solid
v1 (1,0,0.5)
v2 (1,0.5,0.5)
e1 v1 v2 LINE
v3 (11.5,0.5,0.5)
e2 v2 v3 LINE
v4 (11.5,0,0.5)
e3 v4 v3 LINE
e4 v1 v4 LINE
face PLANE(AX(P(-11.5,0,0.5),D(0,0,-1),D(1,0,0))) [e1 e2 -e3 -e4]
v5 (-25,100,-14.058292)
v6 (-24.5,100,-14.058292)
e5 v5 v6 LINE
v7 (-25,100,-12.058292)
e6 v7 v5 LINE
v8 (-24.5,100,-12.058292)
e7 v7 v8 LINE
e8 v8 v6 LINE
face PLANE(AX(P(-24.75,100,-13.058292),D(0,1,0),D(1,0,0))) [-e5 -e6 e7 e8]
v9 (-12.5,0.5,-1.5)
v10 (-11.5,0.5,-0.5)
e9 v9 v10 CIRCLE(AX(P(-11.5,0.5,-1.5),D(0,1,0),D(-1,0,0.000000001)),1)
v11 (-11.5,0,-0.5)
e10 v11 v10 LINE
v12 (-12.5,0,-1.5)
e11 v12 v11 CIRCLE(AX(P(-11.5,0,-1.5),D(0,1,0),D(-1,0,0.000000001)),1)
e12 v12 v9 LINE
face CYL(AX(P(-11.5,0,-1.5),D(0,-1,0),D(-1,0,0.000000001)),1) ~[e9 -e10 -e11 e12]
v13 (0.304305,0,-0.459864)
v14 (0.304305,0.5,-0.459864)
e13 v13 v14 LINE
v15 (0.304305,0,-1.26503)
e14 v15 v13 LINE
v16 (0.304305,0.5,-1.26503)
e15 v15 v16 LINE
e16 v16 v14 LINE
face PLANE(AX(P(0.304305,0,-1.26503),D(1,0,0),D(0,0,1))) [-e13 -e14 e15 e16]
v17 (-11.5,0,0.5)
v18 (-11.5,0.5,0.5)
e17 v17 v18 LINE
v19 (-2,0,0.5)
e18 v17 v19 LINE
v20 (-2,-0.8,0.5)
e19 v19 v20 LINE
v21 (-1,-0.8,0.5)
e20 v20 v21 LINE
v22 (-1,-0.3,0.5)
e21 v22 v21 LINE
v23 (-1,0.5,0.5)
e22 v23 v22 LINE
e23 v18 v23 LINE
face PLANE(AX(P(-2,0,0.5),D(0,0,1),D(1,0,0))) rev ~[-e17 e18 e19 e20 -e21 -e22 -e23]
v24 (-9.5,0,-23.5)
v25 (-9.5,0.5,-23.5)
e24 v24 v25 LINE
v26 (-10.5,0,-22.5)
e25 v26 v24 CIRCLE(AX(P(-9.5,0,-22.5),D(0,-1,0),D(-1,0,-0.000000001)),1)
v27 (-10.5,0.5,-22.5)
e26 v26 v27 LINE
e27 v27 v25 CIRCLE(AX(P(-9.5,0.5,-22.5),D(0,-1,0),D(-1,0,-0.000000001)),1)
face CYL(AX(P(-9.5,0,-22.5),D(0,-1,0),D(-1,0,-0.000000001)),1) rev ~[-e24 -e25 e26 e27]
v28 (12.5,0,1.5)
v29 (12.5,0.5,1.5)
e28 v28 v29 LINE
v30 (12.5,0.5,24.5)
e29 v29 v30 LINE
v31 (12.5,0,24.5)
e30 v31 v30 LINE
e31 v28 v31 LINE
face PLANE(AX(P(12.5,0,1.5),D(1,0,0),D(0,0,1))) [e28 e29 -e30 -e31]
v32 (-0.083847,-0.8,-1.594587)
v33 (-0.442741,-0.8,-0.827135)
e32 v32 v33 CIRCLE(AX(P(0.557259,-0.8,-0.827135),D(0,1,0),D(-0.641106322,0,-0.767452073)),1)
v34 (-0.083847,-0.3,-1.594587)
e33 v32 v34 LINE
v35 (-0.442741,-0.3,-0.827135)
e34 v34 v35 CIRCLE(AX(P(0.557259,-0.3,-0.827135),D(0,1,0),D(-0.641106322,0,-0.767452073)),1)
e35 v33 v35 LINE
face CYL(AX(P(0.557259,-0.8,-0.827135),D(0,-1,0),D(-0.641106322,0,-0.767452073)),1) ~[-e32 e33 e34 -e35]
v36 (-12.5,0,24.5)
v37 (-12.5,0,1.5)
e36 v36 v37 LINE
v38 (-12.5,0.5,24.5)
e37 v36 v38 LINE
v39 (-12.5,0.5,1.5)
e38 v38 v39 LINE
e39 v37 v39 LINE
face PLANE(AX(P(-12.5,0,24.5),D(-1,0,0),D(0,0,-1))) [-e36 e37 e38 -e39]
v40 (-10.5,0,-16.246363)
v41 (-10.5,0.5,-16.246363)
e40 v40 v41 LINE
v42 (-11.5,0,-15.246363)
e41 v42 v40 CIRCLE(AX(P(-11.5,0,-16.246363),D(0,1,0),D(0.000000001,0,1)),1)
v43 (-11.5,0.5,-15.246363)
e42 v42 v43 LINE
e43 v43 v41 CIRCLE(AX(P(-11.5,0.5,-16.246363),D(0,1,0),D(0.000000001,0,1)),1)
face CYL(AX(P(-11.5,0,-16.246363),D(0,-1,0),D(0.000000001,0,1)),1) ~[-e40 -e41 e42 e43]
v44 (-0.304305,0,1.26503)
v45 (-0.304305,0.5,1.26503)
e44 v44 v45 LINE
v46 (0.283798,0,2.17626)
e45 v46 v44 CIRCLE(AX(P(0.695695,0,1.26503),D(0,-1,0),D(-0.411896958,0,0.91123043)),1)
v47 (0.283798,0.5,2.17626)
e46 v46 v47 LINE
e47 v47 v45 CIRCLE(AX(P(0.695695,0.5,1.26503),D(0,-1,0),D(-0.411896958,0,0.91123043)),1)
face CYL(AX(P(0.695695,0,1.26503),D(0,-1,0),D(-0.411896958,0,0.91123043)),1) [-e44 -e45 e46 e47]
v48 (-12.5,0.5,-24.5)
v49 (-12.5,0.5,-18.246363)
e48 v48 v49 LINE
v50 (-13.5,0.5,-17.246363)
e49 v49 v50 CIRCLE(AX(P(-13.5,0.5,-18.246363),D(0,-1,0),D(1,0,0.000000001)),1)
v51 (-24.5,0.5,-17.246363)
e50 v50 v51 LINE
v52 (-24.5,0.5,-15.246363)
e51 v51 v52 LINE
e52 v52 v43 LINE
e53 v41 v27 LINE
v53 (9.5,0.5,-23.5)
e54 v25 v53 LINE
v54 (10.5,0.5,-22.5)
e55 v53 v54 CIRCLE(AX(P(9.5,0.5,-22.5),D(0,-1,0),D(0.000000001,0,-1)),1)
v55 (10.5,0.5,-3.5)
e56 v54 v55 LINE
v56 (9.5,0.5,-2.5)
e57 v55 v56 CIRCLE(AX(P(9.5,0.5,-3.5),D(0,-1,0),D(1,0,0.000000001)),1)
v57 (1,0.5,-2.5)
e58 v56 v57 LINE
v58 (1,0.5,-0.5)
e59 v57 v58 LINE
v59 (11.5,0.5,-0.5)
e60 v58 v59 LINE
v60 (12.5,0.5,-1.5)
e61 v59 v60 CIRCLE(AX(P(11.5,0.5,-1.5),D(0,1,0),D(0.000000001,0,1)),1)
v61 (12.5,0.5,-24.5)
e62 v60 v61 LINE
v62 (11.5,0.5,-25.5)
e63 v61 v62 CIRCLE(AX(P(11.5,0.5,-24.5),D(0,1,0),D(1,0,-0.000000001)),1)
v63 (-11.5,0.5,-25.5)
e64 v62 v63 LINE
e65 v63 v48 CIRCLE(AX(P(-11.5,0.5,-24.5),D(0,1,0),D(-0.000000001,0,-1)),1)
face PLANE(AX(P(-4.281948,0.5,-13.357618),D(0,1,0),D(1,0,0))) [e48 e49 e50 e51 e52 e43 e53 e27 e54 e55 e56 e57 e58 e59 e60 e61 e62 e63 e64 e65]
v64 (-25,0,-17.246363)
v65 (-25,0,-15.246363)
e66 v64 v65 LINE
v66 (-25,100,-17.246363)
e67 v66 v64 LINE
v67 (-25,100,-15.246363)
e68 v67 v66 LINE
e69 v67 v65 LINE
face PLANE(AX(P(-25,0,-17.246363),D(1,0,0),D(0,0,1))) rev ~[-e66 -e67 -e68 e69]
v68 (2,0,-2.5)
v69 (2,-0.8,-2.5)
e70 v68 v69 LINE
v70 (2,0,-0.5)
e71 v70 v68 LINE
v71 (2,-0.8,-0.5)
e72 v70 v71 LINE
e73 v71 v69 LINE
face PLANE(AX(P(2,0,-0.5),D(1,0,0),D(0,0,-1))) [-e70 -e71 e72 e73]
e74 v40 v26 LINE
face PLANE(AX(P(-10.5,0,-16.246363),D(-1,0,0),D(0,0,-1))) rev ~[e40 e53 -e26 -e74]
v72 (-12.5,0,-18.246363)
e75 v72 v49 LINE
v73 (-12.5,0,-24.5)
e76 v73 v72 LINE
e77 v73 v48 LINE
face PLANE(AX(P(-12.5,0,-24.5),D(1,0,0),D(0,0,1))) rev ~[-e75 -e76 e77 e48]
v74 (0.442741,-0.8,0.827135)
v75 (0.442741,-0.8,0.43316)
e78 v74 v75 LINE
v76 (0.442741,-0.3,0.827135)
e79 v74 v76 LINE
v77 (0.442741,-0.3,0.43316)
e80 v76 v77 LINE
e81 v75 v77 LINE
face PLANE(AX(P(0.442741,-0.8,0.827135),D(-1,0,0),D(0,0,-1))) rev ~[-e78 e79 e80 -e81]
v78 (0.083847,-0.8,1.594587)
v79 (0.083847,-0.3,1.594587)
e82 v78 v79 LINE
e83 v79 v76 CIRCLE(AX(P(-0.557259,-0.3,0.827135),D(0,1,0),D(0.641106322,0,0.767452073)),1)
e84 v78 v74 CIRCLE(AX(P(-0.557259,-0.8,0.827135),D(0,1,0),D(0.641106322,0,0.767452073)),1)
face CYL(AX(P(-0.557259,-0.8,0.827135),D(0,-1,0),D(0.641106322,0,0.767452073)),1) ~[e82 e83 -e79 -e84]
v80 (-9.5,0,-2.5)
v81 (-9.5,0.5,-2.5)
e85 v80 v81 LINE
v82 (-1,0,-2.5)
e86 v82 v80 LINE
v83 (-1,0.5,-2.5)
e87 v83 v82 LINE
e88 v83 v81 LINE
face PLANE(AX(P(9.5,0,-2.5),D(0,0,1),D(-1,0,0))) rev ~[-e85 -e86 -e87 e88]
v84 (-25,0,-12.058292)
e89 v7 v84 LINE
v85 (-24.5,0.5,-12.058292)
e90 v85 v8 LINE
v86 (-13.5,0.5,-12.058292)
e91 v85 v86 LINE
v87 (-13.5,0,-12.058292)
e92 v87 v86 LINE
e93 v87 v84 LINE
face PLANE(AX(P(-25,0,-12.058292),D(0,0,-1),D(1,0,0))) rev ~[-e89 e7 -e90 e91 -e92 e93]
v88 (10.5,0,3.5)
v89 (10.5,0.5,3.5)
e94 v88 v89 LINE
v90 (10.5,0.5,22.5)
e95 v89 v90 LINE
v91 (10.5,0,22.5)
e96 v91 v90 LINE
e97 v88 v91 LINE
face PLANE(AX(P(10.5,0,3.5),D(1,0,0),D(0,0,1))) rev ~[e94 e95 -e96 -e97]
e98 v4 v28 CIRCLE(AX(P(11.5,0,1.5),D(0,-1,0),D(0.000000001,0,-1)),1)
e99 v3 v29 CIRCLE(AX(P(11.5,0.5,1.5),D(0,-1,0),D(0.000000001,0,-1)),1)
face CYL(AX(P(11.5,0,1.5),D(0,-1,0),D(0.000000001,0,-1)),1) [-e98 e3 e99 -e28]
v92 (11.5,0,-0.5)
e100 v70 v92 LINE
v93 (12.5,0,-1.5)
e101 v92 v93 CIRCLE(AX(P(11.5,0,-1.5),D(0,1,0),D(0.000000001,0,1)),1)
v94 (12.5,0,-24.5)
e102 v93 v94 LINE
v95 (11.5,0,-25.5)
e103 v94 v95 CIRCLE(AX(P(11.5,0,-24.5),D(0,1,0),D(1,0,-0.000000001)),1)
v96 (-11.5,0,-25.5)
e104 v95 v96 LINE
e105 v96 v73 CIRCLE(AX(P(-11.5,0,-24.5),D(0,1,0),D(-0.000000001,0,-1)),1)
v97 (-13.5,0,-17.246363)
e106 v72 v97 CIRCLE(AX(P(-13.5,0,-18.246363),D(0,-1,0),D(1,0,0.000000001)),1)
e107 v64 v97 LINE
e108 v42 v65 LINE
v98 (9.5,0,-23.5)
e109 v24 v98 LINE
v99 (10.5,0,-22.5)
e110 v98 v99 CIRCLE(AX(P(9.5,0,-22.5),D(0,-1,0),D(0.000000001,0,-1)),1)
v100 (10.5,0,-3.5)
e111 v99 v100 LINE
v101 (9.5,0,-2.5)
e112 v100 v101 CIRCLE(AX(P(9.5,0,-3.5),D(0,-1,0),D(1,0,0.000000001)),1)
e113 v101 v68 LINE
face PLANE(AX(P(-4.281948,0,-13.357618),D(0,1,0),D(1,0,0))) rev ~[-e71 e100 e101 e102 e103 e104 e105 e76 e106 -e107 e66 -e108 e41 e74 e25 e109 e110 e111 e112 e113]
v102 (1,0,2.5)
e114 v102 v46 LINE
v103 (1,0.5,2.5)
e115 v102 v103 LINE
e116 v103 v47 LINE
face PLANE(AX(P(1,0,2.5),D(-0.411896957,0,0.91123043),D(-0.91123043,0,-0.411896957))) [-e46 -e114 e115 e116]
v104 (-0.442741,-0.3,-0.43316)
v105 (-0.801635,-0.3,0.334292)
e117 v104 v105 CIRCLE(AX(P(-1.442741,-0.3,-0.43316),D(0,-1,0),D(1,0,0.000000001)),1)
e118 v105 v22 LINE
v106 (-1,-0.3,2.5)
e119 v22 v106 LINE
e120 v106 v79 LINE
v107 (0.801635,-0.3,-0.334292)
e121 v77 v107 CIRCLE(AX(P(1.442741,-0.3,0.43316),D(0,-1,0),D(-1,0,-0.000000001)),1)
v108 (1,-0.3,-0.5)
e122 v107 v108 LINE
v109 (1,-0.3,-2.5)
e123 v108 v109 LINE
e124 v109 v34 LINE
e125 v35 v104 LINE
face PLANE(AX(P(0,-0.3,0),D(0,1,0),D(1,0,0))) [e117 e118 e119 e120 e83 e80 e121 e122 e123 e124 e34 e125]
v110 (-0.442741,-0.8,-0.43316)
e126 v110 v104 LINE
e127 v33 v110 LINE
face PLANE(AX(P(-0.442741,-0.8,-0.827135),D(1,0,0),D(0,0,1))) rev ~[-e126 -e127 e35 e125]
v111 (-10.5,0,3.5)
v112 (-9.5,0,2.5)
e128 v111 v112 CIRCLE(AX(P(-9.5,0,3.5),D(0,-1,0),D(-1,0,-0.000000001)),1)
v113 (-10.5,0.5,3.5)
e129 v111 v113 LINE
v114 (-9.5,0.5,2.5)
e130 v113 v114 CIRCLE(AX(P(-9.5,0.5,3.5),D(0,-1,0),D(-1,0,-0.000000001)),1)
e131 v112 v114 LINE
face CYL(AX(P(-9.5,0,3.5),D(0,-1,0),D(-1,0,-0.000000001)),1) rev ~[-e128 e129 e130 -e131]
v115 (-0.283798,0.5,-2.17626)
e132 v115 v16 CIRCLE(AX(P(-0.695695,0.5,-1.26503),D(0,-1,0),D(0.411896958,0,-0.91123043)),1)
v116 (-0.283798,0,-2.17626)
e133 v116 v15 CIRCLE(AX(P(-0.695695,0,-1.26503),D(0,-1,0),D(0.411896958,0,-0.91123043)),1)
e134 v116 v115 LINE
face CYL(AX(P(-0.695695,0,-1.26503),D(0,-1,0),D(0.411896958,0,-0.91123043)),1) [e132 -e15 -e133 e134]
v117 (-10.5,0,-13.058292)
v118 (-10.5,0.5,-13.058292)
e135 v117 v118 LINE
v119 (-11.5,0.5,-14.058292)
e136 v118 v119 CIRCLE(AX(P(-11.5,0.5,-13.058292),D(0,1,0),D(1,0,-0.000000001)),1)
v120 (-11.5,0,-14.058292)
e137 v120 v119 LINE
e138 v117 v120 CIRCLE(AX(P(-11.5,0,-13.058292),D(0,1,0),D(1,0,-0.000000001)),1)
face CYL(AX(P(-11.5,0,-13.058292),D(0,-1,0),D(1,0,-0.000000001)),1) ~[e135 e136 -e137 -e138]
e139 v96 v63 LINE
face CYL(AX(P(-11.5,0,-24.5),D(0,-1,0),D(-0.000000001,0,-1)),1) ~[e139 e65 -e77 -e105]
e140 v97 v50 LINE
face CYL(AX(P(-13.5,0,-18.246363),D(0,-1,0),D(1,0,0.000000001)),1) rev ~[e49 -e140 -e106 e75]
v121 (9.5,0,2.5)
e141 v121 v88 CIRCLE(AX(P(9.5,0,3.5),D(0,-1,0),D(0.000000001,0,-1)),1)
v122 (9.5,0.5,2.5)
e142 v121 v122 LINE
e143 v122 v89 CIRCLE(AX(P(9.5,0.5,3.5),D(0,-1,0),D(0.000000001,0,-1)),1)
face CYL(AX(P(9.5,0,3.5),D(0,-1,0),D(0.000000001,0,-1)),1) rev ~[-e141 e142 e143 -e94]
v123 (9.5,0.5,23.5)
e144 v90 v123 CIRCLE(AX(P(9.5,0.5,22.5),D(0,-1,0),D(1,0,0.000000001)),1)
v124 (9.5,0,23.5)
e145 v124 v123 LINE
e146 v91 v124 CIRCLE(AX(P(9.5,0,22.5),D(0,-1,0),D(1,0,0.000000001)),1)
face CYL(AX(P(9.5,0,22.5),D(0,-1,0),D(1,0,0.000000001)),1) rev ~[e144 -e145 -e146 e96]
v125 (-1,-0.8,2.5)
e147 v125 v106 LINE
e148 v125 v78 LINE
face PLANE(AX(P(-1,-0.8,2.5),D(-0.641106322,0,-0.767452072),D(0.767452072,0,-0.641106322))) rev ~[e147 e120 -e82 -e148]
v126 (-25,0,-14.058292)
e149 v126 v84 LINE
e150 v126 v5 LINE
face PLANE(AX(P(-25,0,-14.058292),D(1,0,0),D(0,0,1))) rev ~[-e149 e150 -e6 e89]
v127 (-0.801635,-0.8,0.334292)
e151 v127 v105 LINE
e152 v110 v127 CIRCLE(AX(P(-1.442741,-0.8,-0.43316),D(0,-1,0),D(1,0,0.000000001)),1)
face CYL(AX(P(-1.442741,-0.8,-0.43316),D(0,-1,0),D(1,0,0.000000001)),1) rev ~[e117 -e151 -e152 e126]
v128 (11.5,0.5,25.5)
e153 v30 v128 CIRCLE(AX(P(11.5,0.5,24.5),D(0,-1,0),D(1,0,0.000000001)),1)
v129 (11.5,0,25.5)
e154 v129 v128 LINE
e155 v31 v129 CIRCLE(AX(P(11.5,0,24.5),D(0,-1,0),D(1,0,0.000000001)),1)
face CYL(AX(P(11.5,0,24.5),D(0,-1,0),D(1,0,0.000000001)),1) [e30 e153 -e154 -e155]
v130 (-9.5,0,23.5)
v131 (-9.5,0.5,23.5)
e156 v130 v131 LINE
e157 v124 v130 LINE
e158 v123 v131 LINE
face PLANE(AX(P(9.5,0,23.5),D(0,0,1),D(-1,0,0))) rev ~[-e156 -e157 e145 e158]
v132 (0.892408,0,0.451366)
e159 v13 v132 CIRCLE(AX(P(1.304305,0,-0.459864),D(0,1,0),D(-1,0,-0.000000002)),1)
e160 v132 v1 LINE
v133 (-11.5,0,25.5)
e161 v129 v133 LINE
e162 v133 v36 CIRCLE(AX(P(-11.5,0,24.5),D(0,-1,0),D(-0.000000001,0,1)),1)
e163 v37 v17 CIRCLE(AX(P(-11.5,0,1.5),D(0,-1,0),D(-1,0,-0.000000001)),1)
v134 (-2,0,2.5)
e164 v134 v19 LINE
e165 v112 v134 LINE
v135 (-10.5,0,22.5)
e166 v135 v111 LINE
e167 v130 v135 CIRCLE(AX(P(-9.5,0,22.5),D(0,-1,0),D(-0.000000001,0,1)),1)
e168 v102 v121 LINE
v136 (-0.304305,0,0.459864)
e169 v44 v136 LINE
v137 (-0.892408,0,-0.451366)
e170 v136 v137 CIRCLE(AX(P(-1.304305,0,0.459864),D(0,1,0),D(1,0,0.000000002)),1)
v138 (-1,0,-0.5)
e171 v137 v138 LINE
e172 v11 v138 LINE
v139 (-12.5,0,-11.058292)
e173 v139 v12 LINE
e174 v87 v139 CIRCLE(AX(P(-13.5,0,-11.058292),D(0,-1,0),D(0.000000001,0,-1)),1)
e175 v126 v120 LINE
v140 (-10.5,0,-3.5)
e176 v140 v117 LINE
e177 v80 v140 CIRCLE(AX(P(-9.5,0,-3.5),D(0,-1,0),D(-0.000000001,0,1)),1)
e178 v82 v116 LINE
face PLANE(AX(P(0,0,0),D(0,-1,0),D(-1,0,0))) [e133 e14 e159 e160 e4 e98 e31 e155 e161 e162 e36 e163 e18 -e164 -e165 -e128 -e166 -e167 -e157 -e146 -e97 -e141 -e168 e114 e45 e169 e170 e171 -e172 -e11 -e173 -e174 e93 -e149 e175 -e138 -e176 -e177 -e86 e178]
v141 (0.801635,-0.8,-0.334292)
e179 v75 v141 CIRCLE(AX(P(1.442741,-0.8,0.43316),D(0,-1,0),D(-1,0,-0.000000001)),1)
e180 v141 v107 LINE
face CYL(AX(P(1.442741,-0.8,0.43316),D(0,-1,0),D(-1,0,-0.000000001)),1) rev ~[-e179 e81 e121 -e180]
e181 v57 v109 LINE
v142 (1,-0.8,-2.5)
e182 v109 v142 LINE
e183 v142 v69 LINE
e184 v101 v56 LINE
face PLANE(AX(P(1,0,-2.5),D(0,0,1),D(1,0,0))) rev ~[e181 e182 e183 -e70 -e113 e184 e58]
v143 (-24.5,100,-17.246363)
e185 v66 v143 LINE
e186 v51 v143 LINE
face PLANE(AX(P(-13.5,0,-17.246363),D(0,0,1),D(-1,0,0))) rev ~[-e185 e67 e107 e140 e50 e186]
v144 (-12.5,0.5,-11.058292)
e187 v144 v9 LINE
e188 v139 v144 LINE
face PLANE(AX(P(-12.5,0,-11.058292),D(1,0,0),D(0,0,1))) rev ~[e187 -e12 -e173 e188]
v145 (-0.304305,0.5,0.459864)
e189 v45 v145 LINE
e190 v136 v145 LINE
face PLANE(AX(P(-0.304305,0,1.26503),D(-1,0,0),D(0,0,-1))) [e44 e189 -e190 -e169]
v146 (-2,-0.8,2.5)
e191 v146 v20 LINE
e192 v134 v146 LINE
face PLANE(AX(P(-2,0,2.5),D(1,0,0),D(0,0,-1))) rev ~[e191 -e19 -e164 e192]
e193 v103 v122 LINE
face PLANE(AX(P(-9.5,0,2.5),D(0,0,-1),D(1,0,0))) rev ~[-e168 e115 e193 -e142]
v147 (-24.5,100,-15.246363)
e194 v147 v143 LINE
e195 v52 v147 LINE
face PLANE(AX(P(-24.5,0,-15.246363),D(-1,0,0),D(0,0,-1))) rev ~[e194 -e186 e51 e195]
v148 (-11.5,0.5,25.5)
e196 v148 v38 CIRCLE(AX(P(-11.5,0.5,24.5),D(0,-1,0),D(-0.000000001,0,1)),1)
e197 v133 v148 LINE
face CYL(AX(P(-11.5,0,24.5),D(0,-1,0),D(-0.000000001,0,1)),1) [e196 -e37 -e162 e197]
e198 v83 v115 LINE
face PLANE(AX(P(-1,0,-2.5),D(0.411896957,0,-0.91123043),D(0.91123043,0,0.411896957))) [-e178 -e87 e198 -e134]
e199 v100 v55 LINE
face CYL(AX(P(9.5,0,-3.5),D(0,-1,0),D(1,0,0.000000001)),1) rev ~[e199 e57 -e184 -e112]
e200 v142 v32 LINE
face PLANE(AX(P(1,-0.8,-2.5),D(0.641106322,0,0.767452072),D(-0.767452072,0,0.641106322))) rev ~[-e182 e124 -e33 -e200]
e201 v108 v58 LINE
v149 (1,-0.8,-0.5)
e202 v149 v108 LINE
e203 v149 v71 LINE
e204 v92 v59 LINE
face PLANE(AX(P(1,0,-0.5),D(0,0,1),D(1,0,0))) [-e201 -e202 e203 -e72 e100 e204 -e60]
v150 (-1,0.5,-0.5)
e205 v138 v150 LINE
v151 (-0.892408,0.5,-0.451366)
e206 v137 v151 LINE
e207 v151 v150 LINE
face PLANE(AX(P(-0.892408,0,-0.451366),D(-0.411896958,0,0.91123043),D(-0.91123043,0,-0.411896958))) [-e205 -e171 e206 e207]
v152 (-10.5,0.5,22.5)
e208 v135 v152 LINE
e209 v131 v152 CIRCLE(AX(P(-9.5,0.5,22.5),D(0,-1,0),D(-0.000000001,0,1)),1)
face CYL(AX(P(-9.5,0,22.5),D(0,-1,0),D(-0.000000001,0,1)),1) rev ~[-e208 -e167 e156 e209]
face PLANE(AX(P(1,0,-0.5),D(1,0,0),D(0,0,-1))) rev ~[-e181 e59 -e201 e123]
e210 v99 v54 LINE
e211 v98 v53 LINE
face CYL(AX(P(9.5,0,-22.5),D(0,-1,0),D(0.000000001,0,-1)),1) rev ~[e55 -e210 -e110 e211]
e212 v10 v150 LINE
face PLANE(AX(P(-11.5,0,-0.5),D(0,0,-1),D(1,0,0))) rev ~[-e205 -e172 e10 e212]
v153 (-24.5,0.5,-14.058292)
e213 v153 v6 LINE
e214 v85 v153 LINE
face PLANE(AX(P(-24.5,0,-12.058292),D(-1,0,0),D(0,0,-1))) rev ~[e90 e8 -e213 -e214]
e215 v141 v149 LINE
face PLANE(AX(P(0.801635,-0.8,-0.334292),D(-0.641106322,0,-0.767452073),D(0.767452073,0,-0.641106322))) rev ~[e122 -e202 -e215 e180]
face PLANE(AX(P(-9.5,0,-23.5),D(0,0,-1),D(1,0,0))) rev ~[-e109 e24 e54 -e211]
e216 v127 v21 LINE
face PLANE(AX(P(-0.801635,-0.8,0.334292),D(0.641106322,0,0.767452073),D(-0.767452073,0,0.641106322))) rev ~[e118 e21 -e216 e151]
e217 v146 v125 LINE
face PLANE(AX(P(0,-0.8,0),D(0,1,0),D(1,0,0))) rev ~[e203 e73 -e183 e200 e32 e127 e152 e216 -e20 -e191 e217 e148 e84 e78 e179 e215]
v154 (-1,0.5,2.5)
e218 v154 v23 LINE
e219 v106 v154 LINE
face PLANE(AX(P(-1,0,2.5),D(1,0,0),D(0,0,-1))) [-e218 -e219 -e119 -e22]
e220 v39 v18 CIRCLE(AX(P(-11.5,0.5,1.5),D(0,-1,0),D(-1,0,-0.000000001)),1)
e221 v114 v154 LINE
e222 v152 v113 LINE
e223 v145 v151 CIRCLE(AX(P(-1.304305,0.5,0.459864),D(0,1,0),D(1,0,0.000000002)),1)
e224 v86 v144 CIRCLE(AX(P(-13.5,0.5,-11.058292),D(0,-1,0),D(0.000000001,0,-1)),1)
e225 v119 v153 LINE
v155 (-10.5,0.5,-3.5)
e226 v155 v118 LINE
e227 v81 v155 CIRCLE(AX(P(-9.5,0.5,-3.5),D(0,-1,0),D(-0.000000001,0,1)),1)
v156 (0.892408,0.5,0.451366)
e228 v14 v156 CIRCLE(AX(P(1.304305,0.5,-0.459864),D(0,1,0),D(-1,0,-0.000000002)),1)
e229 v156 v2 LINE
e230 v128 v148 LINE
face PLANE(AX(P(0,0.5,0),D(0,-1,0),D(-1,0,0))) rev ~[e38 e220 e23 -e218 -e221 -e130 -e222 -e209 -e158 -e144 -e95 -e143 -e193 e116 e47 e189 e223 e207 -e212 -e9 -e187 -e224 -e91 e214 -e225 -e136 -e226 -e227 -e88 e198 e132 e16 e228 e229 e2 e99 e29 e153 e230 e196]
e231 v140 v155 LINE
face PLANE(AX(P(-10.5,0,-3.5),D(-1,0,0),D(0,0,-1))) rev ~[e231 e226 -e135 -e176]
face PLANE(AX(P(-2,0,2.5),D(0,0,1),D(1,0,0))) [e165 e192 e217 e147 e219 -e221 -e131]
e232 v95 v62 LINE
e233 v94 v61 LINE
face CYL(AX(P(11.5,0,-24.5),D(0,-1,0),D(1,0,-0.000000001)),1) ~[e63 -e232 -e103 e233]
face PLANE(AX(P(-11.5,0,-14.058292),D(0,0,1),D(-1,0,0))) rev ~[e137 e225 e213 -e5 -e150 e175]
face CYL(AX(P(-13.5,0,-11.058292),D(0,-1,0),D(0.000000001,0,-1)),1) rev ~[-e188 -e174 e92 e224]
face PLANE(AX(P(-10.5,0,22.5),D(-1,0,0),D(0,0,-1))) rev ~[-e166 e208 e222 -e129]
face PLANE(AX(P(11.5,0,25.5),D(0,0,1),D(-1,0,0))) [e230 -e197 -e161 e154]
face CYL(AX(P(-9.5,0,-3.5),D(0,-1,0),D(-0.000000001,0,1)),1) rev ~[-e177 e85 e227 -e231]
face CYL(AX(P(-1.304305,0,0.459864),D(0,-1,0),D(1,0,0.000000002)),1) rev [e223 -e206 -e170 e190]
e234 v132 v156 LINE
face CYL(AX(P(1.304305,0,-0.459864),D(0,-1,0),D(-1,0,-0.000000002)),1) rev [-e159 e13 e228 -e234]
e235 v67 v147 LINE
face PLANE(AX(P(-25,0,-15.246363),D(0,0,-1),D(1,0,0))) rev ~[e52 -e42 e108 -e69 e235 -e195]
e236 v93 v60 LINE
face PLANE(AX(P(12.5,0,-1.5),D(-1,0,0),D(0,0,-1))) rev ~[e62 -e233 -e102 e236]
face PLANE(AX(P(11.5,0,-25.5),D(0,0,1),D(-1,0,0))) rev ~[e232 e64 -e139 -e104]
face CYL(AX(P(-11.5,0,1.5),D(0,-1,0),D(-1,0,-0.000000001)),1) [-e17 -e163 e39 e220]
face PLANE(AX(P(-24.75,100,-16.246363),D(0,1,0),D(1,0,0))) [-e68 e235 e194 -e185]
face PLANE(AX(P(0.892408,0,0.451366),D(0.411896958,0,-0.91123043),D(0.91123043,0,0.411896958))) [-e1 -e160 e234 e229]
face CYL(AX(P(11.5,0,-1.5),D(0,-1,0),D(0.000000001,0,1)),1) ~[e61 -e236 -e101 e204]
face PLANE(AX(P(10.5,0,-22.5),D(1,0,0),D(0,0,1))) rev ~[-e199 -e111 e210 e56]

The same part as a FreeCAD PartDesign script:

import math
import FreeCAD as App
import Part
import Sketcher

V = App.Vector
Q = App.Units.Quantity

doc = App.newDocument("Part")
body = doc.addObject("PartDesign::Body", "Body")

sketch1 = body.newObject("Sketcher::SketchObject", "Sketch")
sketch1.AttachmentSupport = (doc.getObject("XZ_Plane"), [""])
sketch1.MapMode = "FlatFace"
sketch1.addGeometry([
    Part.LineSegment(V(-9.5, -23.5, 0), V(9.5, -23.5, 0)),
    Part.ArcOfCircle(Part.Circle(V(9.5, -22.5, 0), V(0, 0, 1), 1), math.radians(-90), math.radians(0)),
    Part.LineSegment(V(10.5, -22.5, 0), V(10.5, -3.5, 0)),
    Part.ArcOfCircle(Part.Circle(V(9.5, -3.5, 0), V(0, 0, 1), 1), math.radians(0), math.radians(90)),
    Part.LineSegment(V(9.5, -2.5, 0), V(-9.5, -2.5, 0)),
    Part.ArcOfCircle(Part.Circle(V(-9.5, -3.5, 0), V(0, 0, 1), 1), math.radians(90), math.radians(180)),
    Part.LineSegment(V(-10.5, -3.5, 0), V(-10.5, -13.1, 0)),
    Part.ArcOfCircle(Part.Circle(V(-11.5, -13.1, 0), V(0, 0, 1), 1), math.radians(-90), math.radians(0)),
    Part.LineSegment(V(-11.5, -14.1, 0), V(-25, -14.1, 0)),
    Part.LineSegment(V(-25, -14.1, 0), V(-25, -12.1, 0)),
    Part.LineSegment(V(-25, -12.1, 0), V(-13.5, -12.1, 0)),
    Part.ArcOfCircle(Part.Circle(V(-13.5, -11.1, 0), V(0, 0, 1), 1), math.radians(-90), math.radians(0)),
    Part.LineSegment(V(-12.5, -11.1, 0), V(-12.5, -1.5, 0)),
    Part.ArcOfCircle(Part.Circle(V(-11.5, -1.5, 0), V(0, 0, 1), 1), math.radians(90), math.radians(180)),
    Part.LineSegment(V(-11.5, -0.5, 0), V(11.5, -0.5, 0)),
    Part.ArcOfCircle(Part.Circle(V(11.5, -1.5, 0), V(0, 0, 1), 1), math.radians(0), math.radians(90)),
    Part.LineSegment(V(12.5, -1.5, 0), V(12.5, -24.5, 0)),
    Part.ArcOfCircle(Part.Circle(V(11.5, -24.5, 0), V(0, 0, 1), 1), math.radians(-90), math.radians(0)),
    Part.LineSegment(V(11.5, -25.5, 0), V(-11.5, -25.5, 0)),
    Part.ArcOfCircle(Part.Circle(V(-11.5, -24.5, 0), V(0, 0, 1), 1), math.radians(-180), math.radians(-90)),
    Part.LineSegment(V(-12.5, -24.5, 0), V(-12.5, -18.2, 0)),
    Part.ArcOfCircle(Part.Circle(V(-13.5, -18.2, 0), V(0, 0, 1), 1), math.radians(0), math.radians(90)),
    Part.LineSegment(V(-13.5, -17.2, 0), V(-25, -17.2, 0)),
    Part.LineSegment(V(-25, -17.2, 0), V(-25, -15.2, 0)),
    Part.LineSegment(V(-25, -15.2, 0), V(-11.5, -15.2, 0)),
    Part.ArcOfCircle(Part.Circle(V(-11.5, -16.2, 0), V(0, 0, 1), 1), math.radians(0), math.radians(90)),
    Part.LineSegment(V(-10.5, -16.2, 0), V(-10.5, -22.5, 0)),
    Part.ArcOfCircle(Part.Circle(V(-9.5, -22.5, 0), V(0, 0, 1), 1), math.radians(-180), math.radians(-90)),
], False)
sketch1.addConstraint([
    Sketcher.Constraint("Tangent", 0, 2, 1, 1),
    Sketcher.Constraint("Tangent", 1, 2, 2, 1),
    Sketcher.Constraint("Tangent", 2, 2, 3, 1),
    Sketcher.Constraint("Tangent", 3, 2, 4, 1),
    Sketcher.Constraint("Tangent", 4, 2, 5, 1),
    Sketcher.Constraint("Tangent", 5, 2, 6, 1),
    Sketcher.Constraint("Tangent", 6, 2, 7, 2),
    Sketcher.Constraint("Tangent", 7, 1, 8, 1),
    Sketcher.Constraint("Coincident", 8, 2, 9, 1),
    Sketcher.Constraint("Coincident", 9, 2, 10, 1),
    Sketcher.Constraint("Tangent", 10, 2, 11, 1),
    Sketcher.Constraint("Tangent", 11, 2, 12, 1),
    Sketcher.Constraint("Tangent", 12, 2, 13, 2),
    Sketcher.Constraint("Tangent", 13, 1, 14, 1),
    Sketcher.Constraint("Tangent", 14, 2, 15, 2),
    Sketcher.Constraint("Tangent", 15, 1, 16, 1),
    Sketcher.Constraint("Tangent", 16, 2, 17, 2),
    Sketcher.Constraint("Tangent", 17, 1, 18, 1),
    Sketcher.Constraint("Tangent", 18, 2, 19, 2),
    Sketcher.Constraint("Tangent", 19, 1, 20, 1),
    Sketcher.Constraint("Tangent", 20, 2, 21, 1),
    Sketcher.Constraint("Tangent", 21, 2, 22, 1),
    Sketcher.Constraint("Coincident", 22, 2, 23, 1),
    Sketcher.Constraint("Coincident", 23, 2, 24, 1),
    Sketcher.Constraint("Tangent", 24, 2, 25, 2),
    Sketcher.Constraint("Tangent", 25, 1, 26, 1),
    Sketcher.Constraint("Tangent", 26, 2, 27, 1),
    Sketcher.Constraint("Tangent", 27, 2, 0, 1),
    Sketcher.Constraint("Horizontal", 0),
    Sketcher.Constraint("Vertical", 2),
    Sketcher.Constraint("Horizontal", 4),
    Sketcher.Constraint("Vertical", 6),
    Sketcher.Constraint("Horizontal", 8),
    Sketcher.Constraint("Vertical", 9),
    Sketcher.Constraint("Horizontal", 10),
    Sketcher.Constraint("Vertical", 12),
    Sketcher.Constraint("Horizontal", 14),
    Sketcher.Constraint("Vertical", 16),
    Sketcher.Constraint("Horizontal", 18),
    Sketcher.Constraint("Vertical", 20),
    Sketcher.Constraint("Horizontal", 22),
    Sketcher.Constraint("Vertical", 23),
    Sketcher.Constraint("Horizontal", 24),
    Sketcher.Constraint("Vertical", 26),
    Sketcher.Constraint("Equal", 1, 3),
    Sketcher.Constraint("Equal", 3, 5),
    Sketcher.Constraint("Equal", 5, 7),
    Sketcher.Constraint("Equal", 7, 11),
    Sketcher.Constraint("Equal", 11, 13),
    Sketcher.Constraint("Equal", 13, 15),
    Sketcher.Constraint("Equal", 15, 17),
    Sketcher.Constraint("Equal", 17, 19),
    Sketcher.Constraint("Equal", 19, 21),
    Sketcher.Constraint("Equal", 21, 25),
    Sketcher.Constraint("Equal", 25, 27),
    Sketcher.Constraint("Vertical", 7, 3, 13, 3),
    Sketcher.Constraint("Vertical", 13, 3, 19, 3),
    Sketcher.Constraint("Vertical", 19, 3, 25, 3),
    Sketcher.Constraint("Vertical", 9, 2, 22, 2),
    Sketcher.Constraint("Equal", 4, 2),
    Sketcher.Constraint("Equal", 6, 12),
    Sketcher.Constraint("Equal", 18, 16),
    Sketcher.Constraint("Equal", 9, 23),
    Sketcher.Constraint("Equal", 20, 26),
    Sketcher.Constraint("Radius", 1, Q("1 mm")),
    Sketcher.Constraint("DistanceX", 0, 1, 0, 2, Q("19 mm")),
    Sketcher.Constraint("DistanceX", 14, 1, 14, 2, Q("23 mm")),
    Sketcher.Constraint("DistanceX", 8, 2, 8, 1, Q("13.5 mm")),
    Sketcher.Constraint("DistanceX", 8, 2, -1, 1, Q("25 mm")),
    Sketcher.Constraint("DistanceY", 1, 3, -1, 1, Q("22.5 mm")),
    Sketcher.Constraint("DistanceY", 6, 2, 6, 1, Q("9.558292 mm")),
    Sketcher.Constraint("DistanceY", 20, 1, 20, 2, Q("6.253637 mm")),
])
pad1 = body.newObject("PartDesign::Pad", "Pad")
pad1.Profile = sketch1
pad1.Length = 0.5
pad1.Reversed = True
body2 = doc.addObject("PartDesign::Body", "Body001")

sketch2 = body2.newObject("Sketcher::SketchObject", "Sketch001")
sketch2.AttachmentSupport = (doc.getObject("XZ_Plane001"), [""])
sketch2.MapMode = "FlatFace"
sketch2.addGeometry([
    Part.LineSegment(V(11.5, 0.5, 0), V(-11.5, 0.5, 0)),
    Part.ArcOfCircle(Part.Circle(V(-11.5, 1.5, 0), V(0, 0, 1), 1), math.radians(-180), math.radians(-90)),
    Part.LineSegment(V(-12.5, 1.5, 0), V(-12.5, 24.5, 0)),
    Part.ArcOfCircle(Part.Circle(V(-11.5, 24.5, 0), V(0, 0, 1), 1), math.radians(90), math.radians(180)),
    Part.LineSegment(V(-11.5, 25.5, 0), V(11.5, 25.5, 0)),
    Part.ArcOfCircle(Part.Circle(V(11.5, 24.5, 0), V(0, 0, 1), 1), math.radians(0), math.radians(90)),
    Part.LineSegment(V(12.5, 24.5, 0), V(12.5, 1.5, 0)),
    Part.ArcOfCircle(Part.Circle(V(11.5, 1.5, 0), V(0, 0, 1), 1), math.radians(-90), math.radians(0)),
    Part.LineSegment(V(-9.5, 2.5, 0), V(9.5, 2.5, 0)),
    Part.ArcOfCircle(Part.Circle(V(9.5, 3.5, 0), V(0, 0, 1), 1), math.radians(-90), math.radians(0)),
    Part.LineSegment(V(10.5, 3.5, 0), V(10.5, 22.5, 0)),
    Part.ArcOfCircle(Part.Circle(V(9.5, 22.5, 0), V(0, 0, 1), 1), math.radians(0), math.radians(90)),
    Part.LineSegment(V(9.5, 23.5, 0), V(-9.5, 23.5, 0)),
    Part.ArcOfCircle(Part.Circle(V(-9.5, 22.5, 0), V(0, 0, 1), 1), math.radians(90), math.radians(180)),
    Part.LineSegment(V(-10.5, 22.5, 0), V(-10.5, 3.5, 0)),
    Part.ArcOfCircle(Part.Circle(V(-9.5, 3.5, 0), V(0, 0, 1), 1), math.radians(-180), math.radians(-90)),
], False)
sketch2.addConstraint([
    Sketcher.Constraint("Tangent", 0, 2, 1, 2),
    Sketcher.Constraint("Tangent", 1, 1, 2, 1),
    Sketcher.Constraint("Tangent", 2, 2, 3, 2),
    Sketcher.Constraint("Tangent", 3, 1, 4, 1),
    Sketcher.Constraint("Tangent", 4, 2, 5, 2),
    Sketcher.Constraint("Tangent", 5, 1, 6, 1),
    Sketcher.Constraint("Tangent", 6, 2, 7, 2),
    Sketcher.Constraint("Tangent", 7, 1, 0, 1),
    Sketcher.Constraint("Tangent", 8, 2, 9, 1),
    Sketcher.Constraint("Tangent", 9, 2, 10, 1),
    Sketcher.Constraint("Tangent", 10, 2, 11, 1),
    Sketcher.Constraint("Tangent", 11, 2, 12, 1),
    Sketcher.Constraint("Tangent", 12, 2, 13, 1),
    Sketcher.Constraint("Tangent", 13, 2, 14, 1),
    Sketcher.Constraint("Tangent", 14, 2, 15, 1),
    Sketcher.Constraint("Tangent", 15, 2, 8, 1),
    Sketcher.Constraint("Horizontal", 0),
    Sketcher.Constraint("Vertical", 2),
    Sketcher.Constraint("Horizontal", 4),
    Sketcher.Constraint("Vertical", 6),
    Sketcher.Constraint("Horizontal", 8),
    Sketcher.Constraint("Vertical", 10),
    Sketcher.Constraint("Horizontal", 12),
    Sketcher.Constraint("Vertical", 14),
    Sketcher.Constraint("Equal", 1, 3),
    Sketcher.Constraint("Equal", 3, 5),
    Sketcher.Constraint("Equal", 5, 7),
    Sketcher.Constraint("Equal", 7, 9),
    Sketcher.Constraint("Equal", 9, 11),
    Sketcher.Constraint("Equal", 11, 13),
    Sketcher.Constraint("Equal", 13, 15),
    Sketcher.Constraint("Equal", 4, 2),
    Sketcher.Constraint("Equal", 12, 10),
    Sketcher.Constraint("Radius", 1, Q("1 mm")),
    Sketcher.Constraint("DistanceX", 0, 2, 0, 1, Q("23 mm")),
    Sketcher.Constraint("DistanceX", 8, 1, 8, 2, Q("19 mm")),
    Sketcher.Constraint("DistanceX", 9, 3, 7, 3, Q("2 mm")),
    Sketcher.Constraint("DistanceY", 7, 3, 9, 3, Q("2 mm")),
    Sketcher.Constraint("DistanceX", 1, 3, -1, 1, Q("11.5 mm")),
    Sketcher.Constraint("DistanceY", -1, 1, 1, 3, Q("1.5 mm")),
])
pad2 = body2.newObject("PartDesign::Pad", "Pad001")
pad2.Profile = sketch2
pad2.Length = 0.5
pad2.Reversed = True
body3 = doc.addObject("PartDesign::Body", "Body002")

sketch3 = body3.newObject("Sketcher::SketchObject", "Sketch002")
sketch3.AttachmentSupport = (doc.getObject("XZ_Plane002"), [""])
sketch3.MapMode = "FlatFace"
sketch3.addGeometry([
    Part.LineSegment(V(-1, -4.5, 0), V(-1, 4.5, 0)),
    Part.LineSegment(V(-1, 4.5, 0), V(1, 4.5, 0)),
    Part.LineSegment(V(1, 4.5, 0), V(1, -4.5, 0)),
    Part.LineSegment(V(1, -4.5, 0), V(-1, -4.5, 0)),
], False)
sketch3.addConstraint([
    Sketcher.Constraint("Coincident", 0, 2, 1, 1),
    Sketcher.Constraint("Coincident", 1, 2, 2, 1),
    Sketcher.Constraint("Coincident", 2, 2, 3, 1),
    Sketcher.Constraint("Coincident", 3, 2, 0, 1),
    Sketcher.Constraint("Vertical", 0),
    Sketcher.Constraint("Horizontal", 1),
    Sketcher.Constraint("Vertical", 2),
    Sketcher.Constraint("Horizontal", 3),
    Sketcher.Constraint("Symmetric", 0, 2, 2, 2, -1, 1),
    Sketcher.Constraint("DistanceX", 1, 1, 1, 2, Q("2 mm")),
    Sketcher.Constraint("DistanceY", 0, 1, 0, 2, Q("9.011441 mm")),
])
pad3 = body3.newObject("PartDesign::Pad", "Pad002")
pad3.Profile = sketch3
pad3.Type = "TwoLengths"
pad3.Length = 10
pad3.Length2 = 10
pad3.Reversed = True
body.AllowCompound = True
doc.recompute()

body4 = doc.addObject("PartDesign::Body", "Body003")
body4.BaseFeature = body3
boolean = body.newObject("PartDesign::Boolean", "Boolean")
boolean.Type = "Cut"
boolean.addObjects([body4])
doc.recompute()

boolean2 = body2.newObject("PartDesign::Boolean", "Boolean001")
boolean2.Type = "Cut"
boolean2.addObjects([body3])
body.AllowCompound = True
doc.recompute()

boolean3 = body.newObject("PartDesign::Boolean", "Boolean002")
boolean3.Type = "Fuse"
boolean3.addObjects([body2])

sketch4 = body.newObject("Sketcher::SketchObject", "Sketch003")
sketch4.AttachmentSupport = (doc.getObject("XZ_Plane"), [""])
sketch4.MapMode = "FlatFace"
sketch4.addGeometry([
    Part.LineSegment(V(-0.28, -2.18, 0), V(-1, -2.5, 0)),
    Part.LineSegment(V(-1, -2.5, 0), V(-1, -0.5, 0)),
    Part.LineSegment(V(-1, -0.5, 0), V(-0.89, -0.45, 0)),
    Part.ArcOfCircle(Part.Circle(V(-1.3, 0.46, 0), V(0, 0, 1), 1), math.radians(-66), math.radians(0)),
    Part.LineSegment(V(-0.3, 0.46, 0), V(-0.3, 1.27, 0)),
    Part.ArcOfCircle(Part.Circle(V(0.7, 1.27, 0), V(0, 0, 1), 1), math.radians(114), math.radians(180)),
    Part.LineSegment(V(0.28, 2.18, 0), V(1, 2.5, 0)),
    Part.LineSegment(V(1, 2.5, 0), V(1, 0.5, 0)),
    Part.LineSegment(V(1, 0.5, 0), V(0.89, 0.45, 0)),
    Part.ArcOfCircle(Part.Circle(V(1.3, -0.46, 0), V(0, 0, 1), 1), math.radians(114), math.radians(180)),
    Part.LineSegment(V(0.3, -0.46, 0), V(0.3, -1.27, 0)),
    Part.ArcOfCircle(Part.Circle(V(-0.7, -1.27, 0), V(0, 0, 1), 1), math.radians(-66), math.radians(0)),
], False)
sketch4.addConstraint([
    Sketcher.Constraint("Coincident", 0, 2, 1, 1),
    Sketcher.Constraint("Coincident", 1, 2, 2, 1),
    Sketcher.Constraint("Tangent", 2, 2, 3, 1),
    Sketcher.Constraint("Tangent", 3, 2, 4, 1),
    Sketcher.Constraint("Tangent", 4, 2, 5, 2),
    Sketcher.Constraint("Tangent", 5, 1, 6, 1),
    Sketcher.Constraint("Coincident", 6, 2, 7, 1),
    Sketcher.Constraint("Coincident", 7, 2, 8, 1),
    Sketcher.Constraint("Tangent", 8, 2, 9, 1),
    Sketcher.Constraint("Tangent", 9, 2, 10, 1),
    Sketcher.Constraint("Tangent", 10, 2, 11, 2),
    Sketcher.Constraint("Tangent", 11, 1, 0, 1),
    Sketcher.Constraint("Vertical", 1),
    Sketcher.Constraint("Vertical", 4),
    Sketcher.Constraint("Vertical", 7),
    Sketcher.Constraint("Vertical", 10),
    Sketcher.Constraint("Equal", 3, 5),
    Sketcher.Constraint("Equal", 5, 9),
    Sketcher.Constraint("Equal", 9, 11),
    Sketcher.Constraint("Symmetric", 3, 3, 9, 3, -1, 1),
    Sketcher.Constraint("Symmetric", 0, 2, 6, 2, -1, 1),
    Sketcher.Constraint("Parallel", 0, 2),
    Sketcher.Constraint("Parallel", 2, 6),
    Sketcher.Constraint("Parallel", 6, 8),
    Sketcher.Constraint("Radius", 3, Q("1 mm")),
    Sketcher.Constraint("DistanceY", 1, 1, 1, 2, Q("2 mm")),
    Sketcher.Constraint("DistanceX", 0, 2, -1, 1, Q("1 mm")),
    Sketcher.Constraint("DistanceY", 0, 2, -1, 1, Q("2.5 mm")),
    Sketcher.Constraint("DistanceY", 9, 3, 2, 2, Q("0.008498 mm")),
    Sketcher.Constraint("DistanceY", 4, 1, 4, 2, Q("0.805165 mm")),
])
pad4 = body.newObject("PartDesign::Pad", "Pad003")
pad4.Profile = sketch4
pad4.Length = 0.5
pad4.Reversed = True

sketch5 = body.newObject("Sketcher::SketchObject", "Sketch004")
sketch5.AttachmentSupport = (doc.getObject("XZ_Plane"), [""])
sketch5.MapMode = "FlatFace"
sketch5.addGeometry([
    Part.LineSegment(V(-2, 0.5, 0), V(-2, 2.5, 0)),
    Part.LineSegment(V(-2, 2.5, 0), V(-1, 2.5, 0)),
    Part.LineSegment(V(-1, 2.5, 0), V(-1, 0.5, 0)),
    Part.LineSegment(V(-1, 0.5, 0), V(-2, 0.5, 0)),
    Part.LineSegment(V(1, -2.5, 0), V(1, -0.5, 0)),
    Part.LineSegment(V(1, -0.5, 0), V(2, -0.5, 0)),
    Part.LineSegment(V(2, -0.5, 0), V(2, -2.5, 0)),
    Part.LineSegment(V(2, -2.5, 0), V(1, -2.5, 0)),
], False)
sketch5.addConstraint([
    Sketcher.Constraint("Coincident", 0, 2, 1, 1),
    Sketcher.Constraint("Coincident", 1, 2, 2, 1),
    Sketcher.Constraint("Coincident", 2, 2, 3, 1),
    Sketcher.Constraint("Coincident", 3, 2, 0, 1),
    Sketcher.Constraint("Coincident", 4, 2, 5, 1),
    Sketcher.Constraint("Coincident", 5, 2, 6, 1),
    Sketcher.Constraint("Coincident", 6, 2, 7, 1),
    Sketcher.Constraint("Coincident", 7, 2, 4, 1),
    Sketcher.Constraint("Vertical", 0),
    Sketcher.Constraint("Horizontal", 1),
    Sketcher.Constraint("Vertical", 2),
    Sketcher.Constraint("Horizontal", 3),
    Sketcher.Constraint("Vertical", 4),
    Sketcher.Constraint("Horizontal", 5),
    Sketcher.Constraint("Vertical", 6),
    Sketcher.Constraint("Horizontal", 7),
    Sketcher.Constraint("Symmetric", 2, 2, 4, 2, -1, 1),
    Sketcher.Constraint("Symmetric", 0, 2, 6, 2, -1, 1),
    Sketcher.Constraint("DistanceX", 1, 1, 1, 2, Q("1 mm")),
    Sketcher.Constraint("DistanceY", 0, 1, 0, 2, Q("2 mm")),
    Sketcher.Constraint("DistanceX", 0, 2, -1, 1, Q("2 mm")),
    Sketcher.Constraint("DistanceY", 4, 2, 2, 2, Q("1 mm")),
])
pad5 = body.newObject("PartDesign::Pad", "Pad004")
pad5.Profile = sketch5
pad5.Length = 0.8

sketch6 = body.newObject("Sketcher::SketchObject", "Sketch005")
sketch6.AttachmentSupport = (doc.getObject("XZ_Plane"), [""])
sketch6.MapMode = "FlatFace"
sketch6.AttachmentOffset = App.Placement(V(0, 0, 0.8), App.Rotation())
sketch6.addGeometry([
    Part.LineSegment(V(-1, 2.5, 0), V(0.08, 1.59, 0)),
    Part.ArcOfCircle(Part.Circle(V(-0.56, 0.83, 0), V(0, 0, 1), 1), math.radians(0), math.radians(50)),
    Part.LineSegment(V(0.44, 0.83, 0), V(0.44, 0.43, 0)),
    Part.ArcOfCircle(Part.Circle(V(1.44, 0.43, 0), V(0, 0, 1), 1), math.radians(-180), math.radians(-130)),
    Part.LineSegment(V(0.8, -0.33, 0), V(1, -0.5, 0)),
    Part.LineSegment(V(1, -0.5, 0), V(1, -2.5, 0)),
    Part.LineSegment(V(1, -2.5, 0), V(-0.08, -1.59, 0)),
    Part.ArcOfCircle(Part.Circle(V(0.56, -0.83, 0), V(0, 0, 1), 1), math.radians(180), math.radians(230)),
    Part.LineSegment(V(-0.44, -0.83, 0), V(-0.44, -0.43, 0)),
    Part.ArcOfCircle(Part.Circle(V(-1.44, -0.43, 0), V(0, 0, 1), 1), math.radians(0), math.radians(50)),
    Part.LineSegment(V(-0.8, 0.33, 0), V(-1, 0.5, 0)),
    Part.LineSegment(V(-1, 0.5, 0), V(-1, 2.5, 0)),
], False)
sketch6.addConstraint([
    Sketcher.Constraint("Tangent", 0, 2, 1, 2),
    Sketcher.Constraint("Tangent", 1, 1, 2, 1),
    Sketcher.Constraint("Tangent", 2, 2, 3, 1),
    Sketcher.Constraint("Tangent", 3, 2, 4, 1),
    Sketcher.Constraint("Coincident", 4, 2, 5, 1),
    Sketcher.Constraint("Coincident", 5, 2, 6, 1),
    Sketcher.Constraint("Tangent", 6, 2, 7, 2),
    Sketcher.Constraint("Tangent", 7, 1, 8, 1),
    Sketcher.Constraint("Tangent", 8, 2, 9, 1),
    Sketcher.Constraint("Tangent", 9, 2, 10, 1),
    Sketcher.Constraint("Coincident", 10, 2, 11, 1),
    Sketcher.Constraint("Coincident", 11, 2, 0, 1),
    Sketcher.Constraint("Vertical", 2),
    Sketcher.Constraint("Vertical", 5),
    Sketcher.Constraint("Vertical", 8),
    Sketcher.Constraint("Vertical", 11),
    Sketcher.Constraint("Equal", 1, 3),
    Sketcher.Constraint("Equal", 3, 7),
    Sketcher.Constraint("Equal", 7, 9),
    Sketcher.Constraint("Symmetric", 1, 3, 7, 3, -1, 1),
    Sketcher.Constraint("Symmetric", 3, 2, 9, 2, -1, 1),
    Sketcher.Constraint("Symmetric", 5, 2, 11, 2, -1, 1),
    Sketcher.Constraint("Parallel", 0, 4),
    Sketcher.Constraint("Radius", 1, Q("1 mm")),
    Sketcher.Constraint("DistanceY", 5, 2, 5, 1, Q("2 mm")),
    Sketcher.Constraint("DistanceX", -1, 1, 4, 2, Q("1 mm")),
    Sketcher.Constraint("DistanceY", 4, 2, -1, 1, Q("0.5 mm")),
    Sketcher.Constraint("DistanceY", 2, 2, 2, 1, Q("0.393974 mm")),
    Sketcher.Constraint("DistanceX", 1, 3, -1, 1, Q("0.557259 mm")),
])
pad6 = body.newObject("PartDesign::Pad", "Pad005")
pad6.Profile = sketch6
pad6.Length = 0.5
pad6.Reversed = True

sketch7 = body.newObject("Sketcher::SketchObject", "Sketch006")
sketch7.AttachmentSupport = (doc.getObject("XZ_Plane"), [""])
sketch7.MapMode = "FlatFace"
sketch7.addGeometry([
    Part.LineSegment(V(-25, -17.2, 0), V(-25, -15.2, 0)),
    Part.LineSegment(V(-25, -15.2, 0), V(-24.5, -15.2, 0)),
    Part.LineSegment(V(-24.5, -15.2, 0), V(-24.5, -17.2, 0)),
    Part.LineSegment(V(-24.5, -17.2, 0), V(-25, -17.2, 0)),
    Part.LineSegment(V(-25, -14.1, 0), V(-25, -12.1, 0)),
    Part.LineSegment(V(-25, -12.1, 0), V(-24.5, -12.1, 0)),
    Part.LineSegment(V(-24.5, -12.1, 0), V(-24.5, -14.1, 0)),
    Part.LineSegment(V(-24.5, -14.1, 0), V(-25, -14.1, 0)),
], False)
sketch7.addConstraint([
    Sketcher.Constraint("Coincident", 0, 2, 1, 1),
    Sketcher.Constraint("Coincident", 1, 2, 2, 1),
    Sketcher.Constraint("Coincident", 2, 2, 3, 1),
    Sketcher.Constraint("Coincident", 3, 2, 0, 1),
    Sketcher.Constraint("Coincident", 4, 2, 5, 1),
    Sketcher.Constraint("Coincident", 5, 2, 6, 1),
    Sketcher.Constraint("Coincident", 6, 2, 7, 1),
    Sketcher.Constraint("Coincident", 7, 2, 4, 1),
    Sketcher.Constraint("Vertical", 0),
    Sketcher.Constraint("Horizontal", 1),
    Sketcher.Constraint("Vertical", 2),
    Sketcher.Constraint("Horizontal", 3),
    Sketcher.Constraint("Vertical", 4),
    Sketcher.Constraint("Horizontal", 5),
    Sketcher.Constraint("Vertical", 6),
    Sketcher.Constraint("Horizontal", 7),
    Sketcher.Constraint("Vertical", 3, 2, 4, 2),
    Sketcher.Constraint("Vertical", 2, 2, 5, 2),
    Sketcher.Constraint("Equal", 2, 4),
    Sketcher.Constraint("DistanceY", 0, 1, 0, 2, Q("2 mm")),
    Sketcher.Constraint("DistanceX", 1, 1, 1, 2, Q("0.5 mm")),
    Sketcher.Constraint("DistanceX", 0, 2, -1, 1, Q("25 mm")),
    Sketcher.Constraint("DistanceY", 0, 2, 4, 2, Q("3.18807 mm")),
    Sketcher.Constraint("DistanceY", 0, 2, -1, 1, Q("15.246363 mm")),
])
pad7 = body.newObject("PartDesign::Pad", "Pad006")
pad7.Profile = sketch7
pad7.Length = 100
pad7.Reversed = True

doc.recompute()
